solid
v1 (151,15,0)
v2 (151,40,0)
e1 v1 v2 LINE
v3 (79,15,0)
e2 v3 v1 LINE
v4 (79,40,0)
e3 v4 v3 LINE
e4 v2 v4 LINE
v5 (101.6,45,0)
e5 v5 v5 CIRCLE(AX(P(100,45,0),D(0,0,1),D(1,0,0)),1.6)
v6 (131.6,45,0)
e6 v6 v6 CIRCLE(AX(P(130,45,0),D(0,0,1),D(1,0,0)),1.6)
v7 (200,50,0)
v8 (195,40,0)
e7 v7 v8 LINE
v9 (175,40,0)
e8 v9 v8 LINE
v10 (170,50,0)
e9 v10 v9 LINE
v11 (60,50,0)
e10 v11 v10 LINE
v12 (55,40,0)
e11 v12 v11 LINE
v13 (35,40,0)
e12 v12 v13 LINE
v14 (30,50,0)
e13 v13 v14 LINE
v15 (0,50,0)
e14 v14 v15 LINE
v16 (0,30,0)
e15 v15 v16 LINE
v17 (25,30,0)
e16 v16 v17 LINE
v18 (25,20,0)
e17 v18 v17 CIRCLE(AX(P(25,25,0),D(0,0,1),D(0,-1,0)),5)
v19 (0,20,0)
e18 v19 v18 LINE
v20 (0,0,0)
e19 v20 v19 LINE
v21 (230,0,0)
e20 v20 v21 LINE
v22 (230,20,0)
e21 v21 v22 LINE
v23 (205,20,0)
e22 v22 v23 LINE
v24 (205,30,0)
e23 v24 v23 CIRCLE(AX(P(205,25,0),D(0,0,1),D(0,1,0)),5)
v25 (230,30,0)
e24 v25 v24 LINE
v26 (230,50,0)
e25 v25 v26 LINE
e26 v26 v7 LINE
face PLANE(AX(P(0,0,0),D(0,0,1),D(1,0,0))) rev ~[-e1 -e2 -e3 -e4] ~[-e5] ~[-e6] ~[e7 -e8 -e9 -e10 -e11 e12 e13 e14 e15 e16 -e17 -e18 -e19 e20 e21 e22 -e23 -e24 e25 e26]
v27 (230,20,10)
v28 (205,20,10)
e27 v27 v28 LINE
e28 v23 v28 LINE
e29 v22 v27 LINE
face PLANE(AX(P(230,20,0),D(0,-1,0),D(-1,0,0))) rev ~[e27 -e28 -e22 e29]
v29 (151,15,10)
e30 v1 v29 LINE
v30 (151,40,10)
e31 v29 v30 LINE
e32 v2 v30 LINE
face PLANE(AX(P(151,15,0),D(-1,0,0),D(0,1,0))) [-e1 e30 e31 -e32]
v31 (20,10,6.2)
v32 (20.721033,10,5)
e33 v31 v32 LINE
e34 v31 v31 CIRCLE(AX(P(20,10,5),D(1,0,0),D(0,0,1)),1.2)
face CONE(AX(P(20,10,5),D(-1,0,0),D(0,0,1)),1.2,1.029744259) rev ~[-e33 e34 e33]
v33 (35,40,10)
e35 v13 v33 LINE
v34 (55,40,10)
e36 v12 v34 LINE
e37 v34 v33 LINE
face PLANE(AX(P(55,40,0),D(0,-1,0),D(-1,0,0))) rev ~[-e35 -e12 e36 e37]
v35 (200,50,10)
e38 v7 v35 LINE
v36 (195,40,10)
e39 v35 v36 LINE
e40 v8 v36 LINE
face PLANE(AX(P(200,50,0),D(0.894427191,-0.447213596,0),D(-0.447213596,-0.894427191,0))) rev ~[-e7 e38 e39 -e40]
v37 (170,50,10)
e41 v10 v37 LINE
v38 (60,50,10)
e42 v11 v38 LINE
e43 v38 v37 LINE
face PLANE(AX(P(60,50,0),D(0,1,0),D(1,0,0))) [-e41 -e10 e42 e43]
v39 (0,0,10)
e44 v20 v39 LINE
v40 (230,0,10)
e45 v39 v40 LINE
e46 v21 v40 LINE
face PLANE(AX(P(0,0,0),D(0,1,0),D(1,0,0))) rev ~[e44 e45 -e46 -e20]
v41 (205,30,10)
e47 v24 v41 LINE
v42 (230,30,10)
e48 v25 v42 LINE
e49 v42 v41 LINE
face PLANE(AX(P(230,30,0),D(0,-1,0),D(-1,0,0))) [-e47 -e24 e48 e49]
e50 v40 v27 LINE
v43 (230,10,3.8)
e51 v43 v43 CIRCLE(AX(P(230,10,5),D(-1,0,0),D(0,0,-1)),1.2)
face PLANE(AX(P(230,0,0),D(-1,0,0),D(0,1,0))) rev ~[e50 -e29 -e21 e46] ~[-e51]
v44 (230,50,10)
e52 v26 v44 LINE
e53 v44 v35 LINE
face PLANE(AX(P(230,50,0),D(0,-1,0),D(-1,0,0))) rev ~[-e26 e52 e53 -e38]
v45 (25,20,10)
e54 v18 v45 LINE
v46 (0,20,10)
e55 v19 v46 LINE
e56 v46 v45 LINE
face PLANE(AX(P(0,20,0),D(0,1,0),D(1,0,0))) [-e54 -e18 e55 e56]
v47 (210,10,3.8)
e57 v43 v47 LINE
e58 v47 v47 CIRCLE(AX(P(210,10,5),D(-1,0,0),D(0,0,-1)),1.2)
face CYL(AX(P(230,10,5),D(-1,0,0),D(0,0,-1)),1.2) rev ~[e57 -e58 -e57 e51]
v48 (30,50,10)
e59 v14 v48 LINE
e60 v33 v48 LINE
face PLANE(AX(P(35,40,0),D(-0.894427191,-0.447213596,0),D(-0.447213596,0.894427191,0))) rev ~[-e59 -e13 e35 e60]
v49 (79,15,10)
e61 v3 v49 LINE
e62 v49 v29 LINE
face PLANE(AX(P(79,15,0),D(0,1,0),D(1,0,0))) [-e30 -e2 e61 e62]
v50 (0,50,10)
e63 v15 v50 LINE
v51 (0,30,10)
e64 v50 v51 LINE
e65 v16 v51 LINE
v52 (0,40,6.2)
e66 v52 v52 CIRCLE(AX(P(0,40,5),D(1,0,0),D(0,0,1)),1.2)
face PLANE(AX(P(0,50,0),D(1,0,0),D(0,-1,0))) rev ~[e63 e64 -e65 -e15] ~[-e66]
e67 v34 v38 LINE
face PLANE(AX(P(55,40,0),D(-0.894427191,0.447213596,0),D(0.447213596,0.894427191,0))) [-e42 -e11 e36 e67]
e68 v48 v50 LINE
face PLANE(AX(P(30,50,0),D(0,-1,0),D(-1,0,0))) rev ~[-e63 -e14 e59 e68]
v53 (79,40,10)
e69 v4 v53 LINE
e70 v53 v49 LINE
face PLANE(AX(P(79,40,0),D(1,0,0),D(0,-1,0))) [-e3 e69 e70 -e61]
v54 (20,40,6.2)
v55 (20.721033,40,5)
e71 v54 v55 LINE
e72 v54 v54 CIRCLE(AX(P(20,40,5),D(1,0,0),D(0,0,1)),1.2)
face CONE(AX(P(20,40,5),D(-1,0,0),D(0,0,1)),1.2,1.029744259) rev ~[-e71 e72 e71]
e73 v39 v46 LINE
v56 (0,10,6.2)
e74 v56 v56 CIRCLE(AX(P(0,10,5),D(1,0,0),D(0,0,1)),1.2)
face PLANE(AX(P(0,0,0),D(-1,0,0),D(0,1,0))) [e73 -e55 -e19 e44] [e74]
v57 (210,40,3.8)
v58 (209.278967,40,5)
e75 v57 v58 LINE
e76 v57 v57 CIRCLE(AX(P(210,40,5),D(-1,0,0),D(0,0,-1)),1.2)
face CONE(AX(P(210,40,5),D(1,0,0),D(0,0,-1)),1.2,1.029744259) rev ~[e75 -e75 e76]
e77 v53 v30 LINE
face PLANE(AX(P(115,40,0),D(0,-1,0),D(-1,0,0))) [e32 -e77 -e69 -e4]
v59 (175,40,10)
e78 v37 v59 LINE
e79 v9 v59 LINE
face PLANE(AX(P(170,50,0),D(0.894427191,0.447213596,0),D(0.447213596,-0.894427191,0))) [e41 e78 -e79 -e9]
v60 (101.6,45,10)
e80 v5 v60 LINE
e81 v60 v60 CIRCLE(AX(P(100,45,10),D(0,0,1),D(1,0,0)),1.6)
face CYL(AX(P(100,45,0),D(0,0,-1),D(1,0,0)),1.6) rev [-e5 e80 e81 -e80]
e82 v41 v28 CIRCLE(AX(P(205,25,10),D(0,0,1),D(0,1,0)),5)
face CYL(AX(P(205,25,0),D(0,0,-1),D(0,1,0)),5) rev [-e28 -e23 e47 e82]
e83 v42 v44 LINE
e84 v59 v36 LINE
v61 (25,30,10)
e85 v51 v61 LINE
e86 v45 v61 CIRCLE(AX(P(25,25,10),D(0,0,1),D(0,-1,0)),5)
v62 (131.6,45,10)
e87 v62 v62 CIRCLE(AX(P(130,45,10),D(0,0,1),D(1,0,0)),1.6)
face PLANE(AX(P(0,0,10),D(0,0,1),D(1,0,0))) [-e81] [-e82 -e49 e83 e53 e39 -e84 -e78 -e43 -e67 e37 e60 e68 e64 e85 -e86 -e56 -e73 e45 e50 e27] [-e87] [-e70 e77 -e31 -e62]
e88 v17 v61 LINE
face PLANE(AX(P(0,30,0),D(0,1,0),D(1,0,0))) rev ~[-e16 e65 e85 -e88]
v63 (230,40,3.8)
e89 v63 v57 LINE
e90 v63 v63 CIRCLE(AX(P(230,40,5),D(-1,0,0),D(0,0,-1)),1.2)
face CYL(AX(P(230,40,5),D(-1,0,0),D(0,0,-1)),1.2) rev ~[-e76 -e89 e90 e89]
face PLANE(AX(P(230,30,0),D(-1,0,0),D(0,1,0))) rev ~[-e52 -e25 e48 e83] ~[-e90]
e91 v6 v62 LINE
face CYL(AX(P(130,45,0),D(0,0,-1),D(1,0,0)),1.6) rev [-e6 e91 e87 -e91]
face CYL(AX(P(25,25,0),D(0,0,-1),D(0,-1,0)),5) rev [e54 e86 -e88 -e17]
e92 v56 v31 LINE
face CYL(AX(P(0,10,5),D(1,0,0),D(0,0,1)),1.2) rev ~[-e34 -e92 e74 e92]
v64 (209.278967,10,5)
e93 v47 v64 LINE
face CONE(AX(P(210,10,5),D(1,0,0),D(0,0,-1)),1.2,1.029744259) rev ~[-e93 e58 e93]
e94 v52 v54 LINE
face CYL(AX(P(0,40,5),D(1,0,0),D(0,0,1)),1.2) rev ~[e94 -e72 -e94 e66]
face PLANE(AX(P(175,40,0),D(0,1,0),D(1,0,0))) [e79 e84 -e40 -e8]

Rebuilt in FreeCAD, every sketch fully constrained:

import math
import FreeCAD as App
import Part
import Sketcher

V = App.Vector
Q = App.Units.Quantity


def add_polygon(sketch, points):
    """Adds a closed chain of lines whose ends are joined by coincident constraints."""
    first, n = sketch.GeometryCount, len(points)
    for a, b in zip(points, points[1:] + points[:1]):
        sketch.addGeometry(Part.LineSegment(App.Vector(*a, 0), App.Vector(*b, 0)), False)
    for i in range(n):
        sketch.addConstraint(Sketcher.Constraint("Coincident", first + i, 2, first + (i + 1) % n, 1))

doc = App.newDocument("Part")
body = doc.addObject("PartDesign::Body", "Body")

# Sketch on XY plane
sketch1 = body.newObject("Sketcher::SketchObject", "Sketch")
sketch1.AttachmentSupport = (doc.getObject("XY_Plane"), [""])
sketch1.MapMode = "FlatFace"
sketch1.addGeometry(Part.LineSegment(V(0, 20, 0), V(0, 0, 0)), False)  # 0
sketch1.addGeometry(Part.LineSegment(V(0, 0, 0), V(230, 0, 0)), False)  # 1
sketch1.addGeometry(Part.LineSegment(V(230, 0, 0), V(230, 20, 0)), False)  # 2
sketch1.addGeometry(Part.LineSegment(V(230, 20, 0), V(205, 20, 0)), False)  # 3
sketch1.addGeometry(Part.ArcOfCircle(Part.Circle(V(205, 25, 0), V(0, 0, 1), 5), math.radians(90), math.radians(270)), False)  # 4
sketch1.addGeometry(Part.LineSegment(V(205, 30, 0), V(230, 30, 0)), False)  # 5
sketch1.addGeometry(Part.LineSegment(V(230, 30, 0), V(230, 50, 0)), False)  # 6
sketch1.addGeometry(Part.LineSegment(V(230, 50, 0), V(200, 50, 0)), False)  # 7
sketch1.addGeometry(Part.LineSegment(V(200, 50, 0), V(195, 40, 0)), False)  # 8
sketch1.addGeometry(Part.LineSegment(V(195, 40, 0), V(175, 40, 0)), False)  # 9
sketch1.addGeometry(Part.LineSegment(V(175, 40, 0), V(170, 50, 0)), False)  # 10
sketch1.addGeometry(Part.LineSegment(V(170, 50, 0), V(60, 50, 0)), False)  # 11
sketch1.addGeometry(Part.LineSegment(V(60, 50, 0), V(55, 40, 0)), False)  # 12
sketch1.addGeometry(Part.LineSegment(V(55, 40, 0), V(35, 40, 0)), False)  # 13
sketch1.addGeometry(Part.LineSegment(V(35, 40, 0), V(30, 50, 0)), False)  # 14
sketch1.addGeometry(Part.LineSegment(V(30, 50, 0), V(0, 50, 0)), False)  # 15
sketch1.addGeometry(Part.LineSegment(V(0, 50, 0), V(0, 30, 0)), False)  # 16
sketch1.addGeometry(Part.LineSegment(V(0, 30, 0), V(25, 30, 0)), False)  # 17
sketch1.addGeometry(Part.ArcOfCircle(Part.Circle(V(25, 25, 0), V(0, 0, 1), 5), math.radians(-90), math.radians(90)), False)  # 18
sketch1.addGeometry(Part.LineSegment(V(25, 20, 0), V(0, 20, 0)), False)  # 19
sketch1.addGeometry(Part.Circle(V(100, 45, 0), V(0, 0, 1), 1.6), False)  # 20
add_polygon(sketch1, [(79, 40), (151, 40), (151, 15), (79, 15)])  # lines 21-24
sketch1.addGeometry(Part.Circle(V(130, 45, 0), V(0, 0, 1), 1.6), False)  # 25
sketch1.addConstraint([
    Sketcher.Constraint("Coincident", 0, 2, 1, 1),
    Sketcher.Constraint("Coincident", 1, 2, 2, 1),
    Sketcher.Constraint("Coincident", 2, 2, 3, 1),
    Sketcher.Constraint("Tangent", 3, 2, 4, 2),
    Sketcher.Constraint("Tangent", 4, 1, 5, 1),
    Sketcher.Constraint("Coincident", 5, 2, 6, 1),
    Sketcher.Constraint("Coincident", 6, 2, 7, 1),
    Sketcher.Constraint("Coincident", 7, 2, 8, 1),
    Sketcher.Constraint("Coincident", 8, 2, 9, 1),
    Sketcher.Constraint("Coincident", 9, 2, 10, 1),
    Sketcher.Constraint("Coincident", 10, 2, 11, 1),
    Sketcher.Constraint("Coincident", 11, 2, 12, 1),
    Sketcher.Constraint("Coincident", 12, 2, 13, 1),
    Sketcher.Constraint("Coincident", 13, 2, 14, 1),
    Sketcher.Constraint("Coincident", 14, 2, 15, 1),
    Sketcher.Constraint("Coincident", 15, 2, 16, 1),
    Sketcher.Constraint("Coincident", 16, 2, 17, 1),
    Sketcher.Constraint("Tangent", 17, 2, 18, 2),
    Sketcher.Constraint("Tangent", 18, 1, 19, 1),
    Sketcher.Constraint("Coincident", 19, 2, 0, 1),
    Sketcher.Constraint("Vertical", 0),
    Sketcher.Constraint("Horizontal", 1),
    Sketcher.Constraint("Vertical", 2),
    Sketcher.Constraint("Horizontal", 3),
    Sketcher.Constraint("Horizontal", 5),
    Sketcher.Constraint("Vertical", 6),
    Sketcher.Constraint("Horizontal", 7),
    Sketcher.Constraint("Horizontal", 9),
    Sketcher.Constraint("Horizontal", 11),
    Sketcher.Constraint("Horizontal", 13),
    Sketcher.Constraint("Horizontal", 15),
    Sketcher.Constraint("Vertical", 16),
    Sketcher.Constraint("Horizontal", 17),
    Sketcher.Constraint("Horizontal", 19),
    Sketcher.Constraint("Horizontal", 21),
    Sketcher.Constraint("Vertical", 22),
    Sketcher.Constraint("Horizontal", 23),
    Sketcher.Constraint("Vertical", 24),
    Sketcher.Constraint("Coincident", 0, 2, -1, 1),
    Sketcher.Constraint("Equal", 4, 18),
    Sketcher.Constraint("Equal", 20, 25),
    Sketcher.Constraint("PointOnObject", 15, 2, -2),
    Sketcher.Constraint("Parallel", 8, 12),
    Sketcher.Constraint("Parallel", 10, 14),
    Sketcher.Constraint("Horizontal", 4, 3, 18, 3),
    Sketcher.Constraint("Horizontal", 20, 3, 25, 3),
    Sketcher.Constraint("Horizontal", 7, 2, 10, 2),
    Sketcher.Constraint("Horizontal", 9, 2, 12, 2),
    Sketcher.Constraint("Horizontal", 11, 2, 14, 2),
    Sketcher.Constraint("Horizontal", 13, 2, 21, 2),
    Sketcher.Constraint("Vertical", 2, 2, 5, 2),
    Sketcher.Constraint("Equal", 9, 13),
    Sketcher.Constraint("Equal", 7, 15),
    Sketcher.Constraint("Equal", 5, 17),
    Sketcher.Constraint("Equal", 13, 0),
    Sketcher.Constraint("Equal", 2, 6),
    Sketcher.Constraint("Equal", 19, 22),
    Sketcher.Constraint("Equal", 8, 10),
    Sketcher.Constraint("Radius", 4, Q("5 mm")),
    Sketcher.Constraint("Diameter", 20, Q("3.2 mm")),
    Sketcher.Constraint("DistanceX", 1, 1, 1, 2, Q("230 mm")),
    Sketcher.Constraint("DistanceX", 3, 2, 3, 1, Q("25 mm")),
    Sketcher.Constraint("DistanceX", 7, 2, 7, 1, Q("30 mm")),
    Sketcher.Constraint("DistanceX", 9, 2, 9, 1, Q("20 mm")),
    Sketcher.Constraint("DistanceX", 11, 2, 11, 1, Q("110 mm")),
    Sketcher.Constraint("DistanceX", 21, 1, 21, 2, Q("72 mm")),
    Sketcher.Constraint("DistanceY", 18, 3, 20, 3, Q("20 mm")),
    Sketcher.Constraint("DistanceX", 20, 3, 25, 3, Q("30 mm")),
    Sketcher.Constraint("DistanceY", 8, 2, 7, 2, Q("10 mm")),
    Sketcher.Constraint("DistanceX", -1, 1, 20, 3, Q("100 mm")),
    Sketcher.Constraint("DistanceX", -1, 1, 21, 2, Q("151 mm")),
])
pad1 = body.newObject("PartDesign::Pad", "Pad")
pad1.Profile = sketch1
pad1.Length = 10

# Sketch on YZ plane
sketch2 = body.newObject("Sketcher::SketchObject", "Sketch001")
sketch2.AttachmentSupport = (doc.getObject("YZ_Plane"), [""])
sketch2.MapMode = "FlatFace"
sketch2.AttachmentOffset = App.Placement(V(0, 0, 230), App.Rotation())
sketch2.addGeometry(Part.Circle(V(10, 5, 0), V(0, 0, 1), 1.2), False)
sketch2.addConstraint([
    Sketcher.Constraint("Diameter", 0, Q("2.4 mm")),
    Sketcher.Constraint("DistanceX", -1, 1, 0, 3, Q("10 mm")),
    Sketcher.Constraint("DistanceY", -1, 1, 0, 3, Q("5 mm")),
])
doc.recompute()
hole = body.newObject("PartDesign::Hole", "Hole")
hole.Profile = sketch2
hole.ThreadType = "None"
hole.Diameter = 2.4
hole.DepthType = "Dimension"
hole.Depth = 20
hole.DrillPoint = "Angled"
hole.DrillPointAngle = 118

# Sketch on YZ plane
sketch3 = body.newObject("Sketcher::SketchObject", "Sketch002")
sketch3.AttachmentSupport = (doc.getObject("YZ_Plane"), [""])
sketch3.MapMode = "FlatFace"
sketch3.AttachmentOffset = App.Placement(V(0, 0, 230), App.Rotation())
sketch3.addGeometry(Part.Circle(V(40, 5, 0), V(0, 0, 1), 1.2), False)
sketch3.addConstraint([
    Sketcher.Constraint("Diameter", 0, Q("2.4 mm")),
    Sketcher.Constraint("DistanceX", -1, 1, 0, 3, Q("40 mm")),
    Sketcher.Constraint("DistanceY", -1, 1, 0, 3, Q("5 mm")),
])
doc.recompute()
hole2 = body.newObject("PartDesign::Hole", "Hole001")
hole2.Profile = sketch3
hole2.ThreadType = "None"
hole2.Diameter = 2.4
hole2.DepthType = "Dimension"
hole2.Depth = 20
hole2.DrillPoint = "Angled"
hole2.DrillPointAngle = 118

# Sketch on YZ plane
sketch4 = body.newObject("Sketcher::SketchObject", "Sketch003")
sketch4.AttachmentSupport = (doc.getObject("YZ_Plane"), [""])
sketch4.MapMode = "FlatFace"
sketch4.addGeometry(Part.Circle(V(10, 5, 0), V(0, 0, 1), 1.2), False)
sketch4.addConstraint([
    Sketcher.Constraint("Diameter", 0, Q("2.4 mm")),
    Sketcher.Constraint("DistanceX", -1, 1, 0, 3, Q("10 mm")),
    Sketcher.Constraint("DistanceY", -1, 1, 0, 3, Q("5 mm")),
])
doc.recompute()
hole3 = body.newObject("PartDesign::Hole", "Hole002")
hole3.Profile = sketch4
hole3.ThreadType = "None"
hole3.Diameter = 2.4
hole3.DepthType = "Dimension"
hole3.Depth = 20
hole3.DrillPoint = "Angled"
hole3.DrillPointAngle = 118
hole3.Reversed = True

# Sketch on YZ plane
sketch5 = body.newObject("Sketcher::SketchObject", "Sketch004")
sketch5.AttachmentSupport = (doc.getObject("YZ_Plane"), [""])
sketch5.MapMode = "FlatFace"
sketch5.addGeometry(Part.Circle(V(40, 5, 0), V(0, 0, 1), 1.2), False)
sketch5.addConstraint([
    Sketcher.Constraint("Diameter", 0, Q("2.4 mm")),
    Sketcher.Constraint("DistanceX", -1, 1, 0, 3, Q("40 mm")),
    Sketcher.Constraint("DistanceY", -1, 1, 0, 3, Q("5 mm")),
])
doc.recompute()
hole4 = body.newObject("PartDesign::Hole", "Hole003")
hole4.Profile = sketch5
hole4.ThreadType = "None"
hole4.Diameter = 2.4
hole4.DepthType = "Dimension"
hole4.Depth = 20
hole4.DrillPoint = "Angled"
hole4.DrillPointAngle = 118
hole4.Reversed = True

doc.recompute()
